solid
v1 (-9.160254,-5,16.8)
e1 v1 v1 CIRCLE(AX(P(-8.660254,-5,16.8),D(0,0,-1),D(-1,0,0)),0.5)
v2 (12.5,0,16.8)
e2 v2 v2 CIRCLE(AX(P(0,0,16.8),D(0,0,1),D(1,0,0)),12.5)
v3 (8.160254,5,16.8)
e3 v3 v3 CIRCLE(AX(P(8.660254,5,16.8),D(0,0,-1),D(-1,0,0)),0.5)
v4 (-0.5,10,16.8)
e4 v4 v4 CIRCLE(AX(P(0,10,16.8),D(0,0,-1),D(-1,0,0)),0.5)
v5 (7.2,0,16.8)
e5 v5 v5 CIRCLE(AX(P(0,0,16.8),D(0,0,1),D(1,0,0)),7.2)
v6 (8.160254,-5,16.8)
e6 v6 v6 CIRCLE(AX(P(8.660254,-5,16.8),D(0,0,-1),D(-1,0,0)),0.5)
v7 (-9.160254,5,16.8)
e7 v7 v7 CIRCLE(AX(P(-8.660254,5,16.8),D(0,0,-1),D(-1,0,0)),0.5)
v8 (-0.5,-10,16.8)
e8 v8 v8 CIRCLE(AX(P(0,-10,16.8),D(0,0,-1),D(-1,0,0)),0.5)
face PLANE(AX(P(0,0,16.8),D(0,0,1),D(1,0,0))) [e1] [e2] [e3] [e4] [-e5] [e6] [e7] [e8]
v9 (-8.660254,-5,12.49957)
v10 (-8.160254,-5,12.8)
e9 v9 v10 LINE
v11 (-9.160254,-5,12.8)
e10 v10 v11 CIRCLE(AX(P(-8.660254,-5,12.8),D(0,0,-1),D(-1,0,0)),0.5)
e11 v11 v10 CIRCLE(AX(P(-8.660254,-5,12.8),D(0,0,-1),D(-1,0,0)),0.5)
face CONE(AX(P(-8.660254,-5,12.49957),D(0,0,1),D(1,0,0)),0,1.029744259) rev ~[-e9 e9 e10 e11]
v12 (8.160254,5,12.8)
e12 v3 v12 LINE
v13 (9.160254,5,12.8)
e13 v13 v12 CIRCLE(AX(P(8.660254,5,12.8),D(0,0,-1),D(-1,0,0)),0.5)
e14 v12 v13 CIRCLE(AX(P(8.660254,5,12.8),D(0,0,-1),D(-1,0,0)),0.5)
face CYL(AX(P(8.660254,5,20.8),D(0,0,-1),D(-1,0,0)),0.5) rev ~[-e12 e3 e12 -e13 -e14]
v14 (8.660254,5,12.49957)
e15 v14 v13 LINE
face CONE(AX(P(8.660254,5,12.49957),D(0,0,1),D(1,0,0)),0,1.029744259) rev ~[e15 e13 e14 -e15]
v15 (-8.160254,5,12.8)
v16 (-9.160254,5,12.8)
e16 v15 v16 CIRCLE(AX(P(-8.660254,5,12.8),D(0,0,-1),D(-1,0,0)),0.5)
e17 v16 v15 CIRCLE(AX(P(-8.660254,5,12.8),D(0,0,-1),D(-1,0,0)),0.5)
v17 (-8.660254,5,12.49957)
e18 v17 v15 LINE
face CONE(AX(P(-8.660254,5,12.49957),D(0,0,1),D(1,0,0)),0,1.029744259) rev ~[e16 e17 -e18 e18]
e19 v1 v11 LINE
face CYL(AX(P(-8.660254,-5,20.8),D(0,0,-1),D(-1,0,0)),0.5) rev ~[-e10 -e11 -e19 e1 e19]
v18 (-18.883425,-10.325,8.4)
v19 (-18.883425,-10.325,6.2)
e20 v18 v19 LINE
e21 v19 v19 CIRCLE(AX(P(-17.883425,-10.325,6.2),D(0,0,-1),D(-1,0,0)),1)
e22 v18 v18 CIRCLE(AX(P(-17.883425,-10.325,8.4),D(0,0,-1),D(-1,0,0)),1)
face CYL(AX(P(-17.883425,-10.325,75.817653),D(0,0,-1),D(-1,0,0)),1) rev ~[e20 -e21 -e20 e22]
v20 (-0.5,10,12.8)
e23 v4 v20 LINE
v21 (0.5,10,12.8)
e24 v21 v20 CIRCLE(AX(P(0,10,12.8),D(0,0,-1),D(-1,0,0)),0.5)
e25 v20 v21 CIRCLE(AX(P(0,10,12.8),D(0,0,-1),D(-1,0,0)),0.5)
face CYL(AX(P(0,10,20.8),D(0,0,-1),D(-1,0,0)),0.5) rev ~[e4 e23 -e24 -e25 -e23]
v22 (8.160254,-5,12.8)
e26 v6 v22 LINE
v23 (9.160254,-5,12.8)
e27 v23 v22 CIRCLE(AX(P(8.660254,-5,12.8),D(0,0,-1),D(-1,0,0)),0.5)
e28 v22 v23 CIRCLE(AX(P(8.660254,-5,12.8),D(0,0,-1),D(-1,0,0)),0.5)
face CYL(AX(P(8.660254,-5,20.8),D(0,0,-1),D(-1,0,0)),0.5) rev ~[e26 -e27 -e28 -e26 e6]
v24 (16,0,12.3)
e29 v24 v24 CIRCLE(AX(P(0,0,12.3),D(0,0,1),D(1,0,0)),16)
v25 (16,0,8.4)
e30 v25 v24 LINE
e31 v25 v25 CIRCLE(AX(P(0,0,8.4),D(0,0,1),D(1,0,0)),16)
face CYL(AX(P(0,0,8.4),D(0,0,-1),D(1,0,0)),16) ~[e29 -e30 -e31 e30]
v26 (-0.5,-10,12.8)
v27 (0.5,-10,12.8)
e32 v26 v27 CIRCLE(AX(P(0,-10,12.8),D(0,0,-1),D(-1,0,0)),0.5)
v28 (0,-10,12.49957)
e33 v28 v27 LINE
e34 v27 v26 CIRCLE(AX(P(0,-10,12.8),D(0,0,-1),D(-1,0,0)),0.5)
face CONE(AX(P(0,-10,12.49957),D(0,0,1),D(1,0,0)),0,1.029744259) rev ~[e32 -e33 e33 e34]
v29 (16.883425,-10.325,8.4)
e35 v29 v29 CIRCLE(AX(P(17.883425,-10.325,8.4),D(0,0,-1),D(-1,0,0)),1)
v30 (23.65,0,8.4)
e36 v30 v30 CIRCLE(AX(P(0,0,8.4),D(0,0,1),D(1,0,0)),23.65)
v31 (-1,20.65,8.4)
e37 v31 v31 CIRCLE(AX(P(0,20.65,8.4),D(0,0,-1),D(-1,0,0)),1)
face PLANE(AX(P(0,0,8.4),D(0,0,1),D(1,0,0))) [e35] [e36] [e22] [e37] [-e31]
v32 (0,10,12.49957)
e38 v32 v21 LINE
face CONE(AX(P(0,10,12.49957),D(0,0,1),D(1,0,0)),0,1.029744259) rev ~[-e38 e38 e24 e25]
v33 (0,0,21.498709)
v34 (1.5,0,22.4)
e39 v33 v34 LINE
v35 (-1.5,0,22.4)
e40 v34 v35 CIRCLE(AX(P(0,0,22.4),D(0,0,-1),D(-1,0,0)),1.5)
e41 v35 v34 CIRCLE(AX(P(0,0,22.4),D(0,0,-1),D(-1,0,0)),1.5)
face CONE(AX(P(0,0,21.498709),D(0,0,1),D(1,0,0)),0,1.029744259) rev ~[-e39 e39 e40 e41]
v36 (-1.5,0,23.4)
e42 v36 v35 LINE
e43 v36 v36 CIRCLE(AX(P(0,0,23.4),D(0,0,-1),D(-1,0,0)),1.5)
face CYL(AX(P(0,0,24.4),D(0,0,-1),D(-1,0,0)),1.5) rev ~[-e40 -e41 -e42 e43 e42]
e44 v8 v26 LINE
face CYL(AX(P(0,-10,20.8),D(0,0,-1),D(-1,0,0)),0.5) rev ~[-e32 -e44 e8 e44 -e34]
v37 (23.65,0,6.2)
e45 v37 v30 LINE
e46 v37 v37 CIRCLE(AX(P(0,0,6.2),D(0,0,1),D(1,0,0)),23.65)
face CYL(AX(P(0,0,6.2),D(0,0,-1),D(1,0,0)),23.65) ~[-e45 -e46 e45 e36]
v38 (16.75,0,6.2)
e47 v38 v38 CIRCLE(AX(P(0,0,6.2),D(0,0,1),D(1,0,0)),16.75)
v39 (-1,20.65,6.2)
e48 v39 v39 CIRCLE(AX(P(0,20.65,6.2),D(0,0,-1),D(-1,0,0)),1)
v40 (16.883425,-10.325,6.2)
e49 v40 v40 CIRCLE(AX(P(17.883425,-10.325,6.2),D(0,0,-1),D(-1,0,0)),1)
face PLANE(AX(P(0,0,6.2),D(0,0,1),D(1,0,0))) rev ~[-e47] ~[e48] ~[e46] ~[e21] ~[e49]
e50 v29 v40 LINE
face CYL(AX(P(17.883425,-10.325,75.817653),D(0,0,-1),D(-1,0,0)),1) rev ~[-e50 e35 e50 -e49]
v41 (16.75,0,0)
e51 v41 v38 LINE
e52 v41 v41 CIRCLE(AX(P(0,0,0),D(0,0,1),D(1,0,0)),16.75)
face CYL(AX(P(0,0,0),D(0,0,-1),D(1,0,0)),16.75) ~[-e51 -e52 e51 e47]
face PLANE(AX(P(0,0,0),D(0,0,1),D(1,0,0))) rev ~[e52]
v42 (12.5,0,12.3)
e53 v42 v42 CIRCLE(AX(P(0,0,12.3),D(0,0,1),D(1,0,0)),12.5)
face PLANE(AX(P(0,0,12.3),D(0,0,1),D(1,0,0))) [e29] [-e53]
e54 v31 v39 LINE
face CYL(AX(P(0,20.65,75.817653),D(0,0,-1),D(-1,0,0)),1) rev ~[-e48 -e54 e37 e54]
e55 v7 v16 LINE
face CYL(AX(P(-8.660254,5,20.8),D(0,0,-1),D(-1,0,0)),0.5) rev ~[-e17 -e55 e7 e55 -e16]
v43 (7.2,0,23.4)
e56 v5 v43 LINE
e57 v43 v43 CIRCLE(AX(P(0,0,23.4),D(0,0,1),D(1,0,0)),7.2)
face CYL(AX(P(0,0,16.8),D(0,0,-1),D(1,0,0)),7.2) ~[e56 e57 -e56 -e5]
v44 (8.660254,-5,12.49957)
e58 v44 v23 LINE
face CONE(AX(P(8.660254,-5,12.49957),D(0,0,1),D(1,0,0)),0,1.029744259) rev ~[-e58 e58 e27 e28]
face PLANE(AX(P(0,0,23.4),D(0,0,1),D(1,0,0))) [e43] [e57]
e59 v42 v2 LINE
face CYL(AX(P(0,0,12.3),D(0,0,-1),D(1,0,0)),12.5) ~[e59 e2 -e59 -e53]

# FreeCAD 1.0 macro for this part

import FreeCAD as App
import Part
import Sketcher
from FreeCAD import Vector
Q = App.Units.Quantity

doc = App.newDocument("Part")
params = doc.addObject("Spreadsheet::Sheet", "Params")
for row, (alias, value) in enumerate([
    ("sketch1_diameter", "33.5 mm"),
    ("pad1_length", "6.2 mm"),
    ("sketch2_diameter", "47.3 mm"),
    ("pad2_length", "2.2 mm"),
    ("sketch3_diameter", "2 mm"),
    ("hole_diameter", "2 mm"),
    ("sketch4_diameter", "32 mm"),
    ("pad3_length", "3.9 mm"),
    ("sketch5_diameter", "25 mm"),
    ("pad4_length", "4.5 mm"),
    ("sketch6_diameter", "1 mm"),
    ("hole2_diameter", "1 mm"),
    ("hole2_depth", "4 mm"),
    ("sketch7_diameter", "14.4 mm"),
    ("pad5_length", "6.6 mm"),
    ("sketch8_diameter", "3 mm"),
    ("hole3_diameter", "3 mm"),
    ("hole3_depth", "1 mm"),
], start=1):
    params.set(f"A{row}", alias)
    params.set(f"B{row}", "=" + value)
    params.setAlias(f"B{row}", alias)

body = doc.addObject("PartDesign::Body", "Body")

# Sketch on XY plane
sketch1 = doc.addObject("Sketcher::SketchObject", "Sketch")
body.addObject(sketch1)
sketch1.AttachmentSupport = (doc.XY_Plane, [""])
sketch1.MapMode = "FlatFace"
sketch1.addGeometry(Part.Circle(Vector(0, 0, 0), Vector(0, 0, 1), 17), False)
sketch1.addConstraint([
    Sketcher.Constraint("Coincident", 0, 3, -1, 1),
    Sketcher.Constraint("Diameter", 0, Q("33.5 mm")),
])
sketch1.setExpression("Constraints[1]", "Params.sketch1_diameter")
pad1 = doc.addObject("PartDesign::Pad", "Pad")
body.addObject(pad1)
pad1.Profile = sketch1
pad1.setExpression("Length", "Params.pad1_length")

# Sketch on XY plane
sketch2 = doc.addObject("Sketcher::SketchObject", "Sketch001")
body.addObject(sketch2)
sketch2.AttachmentSupport = (doc.XY_Plane, [""])
sketch2.MapMode = "FlatFace"
sketch2.AttachmentOffset = App.Placement(Vector(0, 0, 6.2), App.Rotation())
sketch2.addGeometry(Part.Circle(Vector(0, 0, 0), Vector(0, 0, 1), 24), False)
sketch2.addConstraint([
    Sketcher.Constraint("Coincident", 0, 3, -1, 1),
    Sketcher.Constraint("Diameter", 0, Q("47.3 mm")),
])
sketch2.setExpression("Constraints[1]", "Params.sketch2_diameter")
pad2 = doc.addObject("PartDesign::Pad", "Pad001")
body.addObject(pad2)
pad2.Profile = sketch2
pad2.setExpression("Length", "Params.pad2_length")

# Sketch on XY plane
sketch3 = doc.addObject("Sketcher::SketchObject", "Sketch002")
body.addObject(sketch3)
sketch3.AttachmentSupport = (doc.XY_Plane, [""])
sketch3.MapMode = "FlatFace"
sketch3.AttachmentOffset = App.Placement(Vector(0, 0, 8.4), App.Rotation())
sketch3.addGeometry([
    Part.Circle(Vector(0, 20.6, 0), Vector(0, 0, 1), 1),
    Part.Circle(Vector(17.9, -10.3, 0), Vector(0, 0, 1), 1),
    Part.Circle(Vector(-17.9, -10.3, 0), Vector(0, 0, 1), 1),
], False)
sketch3.addConstraint([
    Sketcher.Constraint("Equal", 0, 1),
    Sketcher.Constraint("Equal", 1, 2),
    Sketcher.Constraint("Symmetric", 1, 3, 2, 3, -2),
    Sketcher.Constraint("PointOnObject", 0, 3, -2),
    Sketcher.Constraint("Diameter", 0, Q("2 mm")),
    Sketcher.Constraint("DistanceY", -1, 1, 0, 3, Q("20.65 mm")),
    Sketcher.Constraint("DistanceY", 1, 3, -1, 1, Q("10.325 mm")),
    Sketcher.Constraint("DistanceX", 2, 3, 1, 3, Q("35.766849 mm")),
])
sketch3.setExpression("Constraints[4]", "Params.sketch3_diameter")
doc.recompute()
hole = doc.addObject("PartDesign::Hole", "Hole")
body.addObject(hole)
hole.Profile = sketch3
hole.ThreadType = "None"
hole.setExpression("Diameter", "Params.hole_diameter")
hole.DepthType = "ThroughAll"

# Sketch on XY plane
sketch4 = doc.addObject("Sketcher::SketchObject", "Sketch003")
body.addObject(sketch4)
sketch4.AttachmentSupport = (doc.XY_Plane, [""])
sketch4.MapMode = "FlatFace"
sketch4.AttachmentOffset = App.Placement(Vector(0, 0, 8.4), App.Rotation())
sketch4.addGeometry(Part.Circle(Vector(0, 0, 0), Vector(0, 0, 1), 16), False)
sketch4.addConstraint([
    Sketcher.Constraint("Coincident", 0, 3, -1, 1),
    Sketcher.Constraint("Diameter", 0, Q("32 mm")),
])
sketch4.setExpression("Constraints[1]", "Params.sketch4_diameter")
pad3 = doc.addObject("PartDesign::Pad", "Pad002")
body.addObject(pad3)
pad3.Profile = sketch4
pad3.setExpression("Length", "Params.pad3_length")

# Sketch on XY plane
sketch5 = doc.addObject("Sketcher::SketchObject", "Sketch004")
body.addObject(sketch5)
sketch5.AttachmentSupport = (doc.XY_Plane, [""])
sketch5.MapMode = "FlatFace"
sketch5.AttachmentOffset = App.Placement(Vector(0, 0, 12.3), App.Rotation())
sketch5.addGeometry(Part.Circle(Vector(0, 0, 0), Vector(0, 0, 1), 12), False)
sketch5.addConstraint([
    Sketcher.Constraint("Coincident", 0, 3, -1, 1),
    Sketcher.Constraint("Diameter", 0, Q("25 mm")),
])
sketch5.setExpression("Constraints[1]", "Params.sketch5_diameter")
pad4 = doc.addObject("PartDesign::Pad", "Pad003")
body.addObject(pad4)
pad4.Profile = sketch5
pad4.setExpression("Length", "Params.pad4_length")

# Sketch on XY plane
sketch6 = doc.addObject("Sketcher::SketchObject", "Sketch005")
body.addObject(sketch6)
sketch6.AttachmentSupport = (doc.XY_Plane, [""])
sketch6.MapMode = "FlatFace"
sketch6.AttachmentOffset = App.Placement(Vector(0, 0, 16.8), App.Rotation())
sketch6.addGeometry([
    Part.Circle(Vector(-8.7, 5, 0), Vector(0, 0, 1), 0.5),  # 0
    Part.Circle(Vector(0, 10, 0), Vector(0, 0, 1), 0.5),  # 1
    Part.Circle(Vector(8.7, 5, 0), Vector(0, 0, 1), 0.5),  # 2
    Part.Circle(Vector(8.7, -5, 0), Vector(0, 0, 1), 0.5),  # 3
    Part.Circle(Vector(0, -10, 0), Vector(0, 0, 1), 0.5),  # 4
    Part.Circle(Vector(-8.7, -5, 0), Vector(0, 0, 1), 0.5),  # 5
], False)
sketch6.addConstraint([
    Sketcher.Constraint("Equal", 0, 1),
    Sketcher.Constraint("Equal", 1, 2),
    Sketcher.Constraint("Equal", 2, 3),
    Sketcher.Constraint("Equal", 3, 4),
    Sketcher.Constraint("Equal", 4, 5),
    Sketcher.Constraint("Symmetric", 0, 3, 3, 3, -1, 1),
    Sketcher.Constraint("Symmetric", 1, 3, 4, 3, -1, 1),
    Sketcher.Constraint("Symmetric", 2, 3, 5, 3, -1, 1),
    Sketcher.Constraint("Symmetric", 0, 3, 2, 3, -2),
    Sketcher.Constraint("PointOnObject", 1, 3, -2),
    Sketcher.Constraint("Diameter", 0, Q("1 mm")),
    Sketcher.Constraint("DistanceY", -1, 1, 0, 3, Q("5 mm")),
    Sketcher.Constraint("DistanceY", -1, 1, 1, 3, Q("10 mm")),
    Sketcher.Constraint("DistanceX", 0, 3, 2, 3, Q("17.320508 mm")),
])
sketch6.setExpression("Constraints[10]", "Params.sketch6_diameter")
doc.recompute()
hole2 = doc.addObject("PartDesign::Hole", "Hole001")
body.addObject(hole2)
hole2.Profile = sketch6
hole2.ThreadType = "None"
hole2.setExpression("Diameter", "Params.hole2_diameter")
hole2.DepthType = "Dimension"
hole2.setExpression("Depth", "Params.hole2_depth")
hole2.DrillPoint = "Angled"
hole2.DrillPointAngle = 118

# Sketch on XY plane
sketch7 = doc.addObject("Sketcher::SketchObject", "Sketch006")
body.addObject(sketch7)
sketch7.AttachmentSupport = (doc.XY_Plane, [""])
sketch7.MapMode = "FlatFace"
sketch7.AttachmentOffset = App.Placement(Vector(0, 0, 16.8), App.Rotation())
sketch7.addGeometry(Part.Circle(Vector(0, 0, 0), Vector(0, 0, 1), 7), False)
sketch7.addConstraint([
    Sketcher.Constraint("Coincident", 0, 3, -1, 1),
    Sketcher.Constraint("Diameter", 0, Q("14.4 mm")),
])
sketch7.setExpression("Constraints[1]", "Params.sketch7_diameter")
pad5 = doc.addObject("PartDesign::Pad", "Pad004")
body.addObject(pad5)
pad5.Profile = sketch7
pad5.setExpression("Length", "Params.pad5_length")

# Sketch on XY plane
sketch8 = doc.addObject("Sketcher::SketchObject", "Sketch007")
body.addObject(sketch8)
sketch8.AttachmentSupport = (doc.XY_Plane, [""])
sketch8.MapMode = "FlatFace"
sketch8.AttachmentOffset = App.Placement(Vector(0, 0, 23.4), App.Rotation())
sketch8.addGeometry(Part.Circle(Vector(0, 0, 0), Vector(0, 0, 1), 1.5), False)
sketch8.addConstraint([
    Sketcher.Constraint("Coincident", 0, 3, -1, 1),
    Sketcher.Constraint("Diameter", 0, Q("3 mm")),
])
sketch8.setExpression("Constraints[1]", "Params.sketch8_diameter")
doc.recompute()
hole3 = doc.addObject("PartDesign::Hole", "Hole002")
body.addObject(hole3)
hole3.Profile = sketch8
hole3.ThreadType = "None"
hole3.setExpression("Diameter", "Params.hole3_diameter")
hole3.DepthType = "Dimension"
hole3.setExpression("Depth", "Params.hole3_depth")
hole3.DrillPoint = "Angled"
hole3.DrillPointAngle = 118

doc.recompute()
